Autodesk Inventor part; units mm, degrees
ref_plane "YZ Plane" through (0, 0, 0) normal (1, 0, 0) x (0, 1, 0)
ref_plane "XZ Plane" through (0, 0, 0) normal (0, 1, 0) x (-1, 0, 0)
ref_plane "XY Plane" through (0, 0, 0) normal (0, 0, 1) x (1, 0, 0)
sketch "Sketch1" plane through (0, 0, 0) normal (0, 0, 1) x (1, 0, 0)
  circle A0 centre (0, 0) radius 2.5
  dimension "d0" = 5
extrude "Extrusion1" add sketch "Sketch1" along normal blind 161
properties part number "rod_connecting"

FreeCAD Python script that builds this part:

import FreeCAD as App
import Part
import Sketcher
from FreeCAD import Vector

doc = App.newDocument("Part")
body = doc.addObject("PartDesign::Body", "Body")

sketch1 = body.newObject("Sketcher::SketchObject", "Sketch")
sketch1.AttachmentSupport = (doc.getObject("XY_Plane"), [""])
sketch1.MapMode = "FlatFace"
sketch1.addGeometry(Part.Circle(Vector(0, 0, 0), Vector(0, 0, 1), 2.5), False)
sketch1.addConstraint([
    Sketcher.Constraint("Coincident", 0, 3, -1, 1),
    Sketcher.Constraint("Diameter", 0, 5.0),
])
pad1 = body.newObject("PartDesign::Pad", "Pad")
pad1.Profile = sketch1
pad1.Length = 161

doc.recompute()
